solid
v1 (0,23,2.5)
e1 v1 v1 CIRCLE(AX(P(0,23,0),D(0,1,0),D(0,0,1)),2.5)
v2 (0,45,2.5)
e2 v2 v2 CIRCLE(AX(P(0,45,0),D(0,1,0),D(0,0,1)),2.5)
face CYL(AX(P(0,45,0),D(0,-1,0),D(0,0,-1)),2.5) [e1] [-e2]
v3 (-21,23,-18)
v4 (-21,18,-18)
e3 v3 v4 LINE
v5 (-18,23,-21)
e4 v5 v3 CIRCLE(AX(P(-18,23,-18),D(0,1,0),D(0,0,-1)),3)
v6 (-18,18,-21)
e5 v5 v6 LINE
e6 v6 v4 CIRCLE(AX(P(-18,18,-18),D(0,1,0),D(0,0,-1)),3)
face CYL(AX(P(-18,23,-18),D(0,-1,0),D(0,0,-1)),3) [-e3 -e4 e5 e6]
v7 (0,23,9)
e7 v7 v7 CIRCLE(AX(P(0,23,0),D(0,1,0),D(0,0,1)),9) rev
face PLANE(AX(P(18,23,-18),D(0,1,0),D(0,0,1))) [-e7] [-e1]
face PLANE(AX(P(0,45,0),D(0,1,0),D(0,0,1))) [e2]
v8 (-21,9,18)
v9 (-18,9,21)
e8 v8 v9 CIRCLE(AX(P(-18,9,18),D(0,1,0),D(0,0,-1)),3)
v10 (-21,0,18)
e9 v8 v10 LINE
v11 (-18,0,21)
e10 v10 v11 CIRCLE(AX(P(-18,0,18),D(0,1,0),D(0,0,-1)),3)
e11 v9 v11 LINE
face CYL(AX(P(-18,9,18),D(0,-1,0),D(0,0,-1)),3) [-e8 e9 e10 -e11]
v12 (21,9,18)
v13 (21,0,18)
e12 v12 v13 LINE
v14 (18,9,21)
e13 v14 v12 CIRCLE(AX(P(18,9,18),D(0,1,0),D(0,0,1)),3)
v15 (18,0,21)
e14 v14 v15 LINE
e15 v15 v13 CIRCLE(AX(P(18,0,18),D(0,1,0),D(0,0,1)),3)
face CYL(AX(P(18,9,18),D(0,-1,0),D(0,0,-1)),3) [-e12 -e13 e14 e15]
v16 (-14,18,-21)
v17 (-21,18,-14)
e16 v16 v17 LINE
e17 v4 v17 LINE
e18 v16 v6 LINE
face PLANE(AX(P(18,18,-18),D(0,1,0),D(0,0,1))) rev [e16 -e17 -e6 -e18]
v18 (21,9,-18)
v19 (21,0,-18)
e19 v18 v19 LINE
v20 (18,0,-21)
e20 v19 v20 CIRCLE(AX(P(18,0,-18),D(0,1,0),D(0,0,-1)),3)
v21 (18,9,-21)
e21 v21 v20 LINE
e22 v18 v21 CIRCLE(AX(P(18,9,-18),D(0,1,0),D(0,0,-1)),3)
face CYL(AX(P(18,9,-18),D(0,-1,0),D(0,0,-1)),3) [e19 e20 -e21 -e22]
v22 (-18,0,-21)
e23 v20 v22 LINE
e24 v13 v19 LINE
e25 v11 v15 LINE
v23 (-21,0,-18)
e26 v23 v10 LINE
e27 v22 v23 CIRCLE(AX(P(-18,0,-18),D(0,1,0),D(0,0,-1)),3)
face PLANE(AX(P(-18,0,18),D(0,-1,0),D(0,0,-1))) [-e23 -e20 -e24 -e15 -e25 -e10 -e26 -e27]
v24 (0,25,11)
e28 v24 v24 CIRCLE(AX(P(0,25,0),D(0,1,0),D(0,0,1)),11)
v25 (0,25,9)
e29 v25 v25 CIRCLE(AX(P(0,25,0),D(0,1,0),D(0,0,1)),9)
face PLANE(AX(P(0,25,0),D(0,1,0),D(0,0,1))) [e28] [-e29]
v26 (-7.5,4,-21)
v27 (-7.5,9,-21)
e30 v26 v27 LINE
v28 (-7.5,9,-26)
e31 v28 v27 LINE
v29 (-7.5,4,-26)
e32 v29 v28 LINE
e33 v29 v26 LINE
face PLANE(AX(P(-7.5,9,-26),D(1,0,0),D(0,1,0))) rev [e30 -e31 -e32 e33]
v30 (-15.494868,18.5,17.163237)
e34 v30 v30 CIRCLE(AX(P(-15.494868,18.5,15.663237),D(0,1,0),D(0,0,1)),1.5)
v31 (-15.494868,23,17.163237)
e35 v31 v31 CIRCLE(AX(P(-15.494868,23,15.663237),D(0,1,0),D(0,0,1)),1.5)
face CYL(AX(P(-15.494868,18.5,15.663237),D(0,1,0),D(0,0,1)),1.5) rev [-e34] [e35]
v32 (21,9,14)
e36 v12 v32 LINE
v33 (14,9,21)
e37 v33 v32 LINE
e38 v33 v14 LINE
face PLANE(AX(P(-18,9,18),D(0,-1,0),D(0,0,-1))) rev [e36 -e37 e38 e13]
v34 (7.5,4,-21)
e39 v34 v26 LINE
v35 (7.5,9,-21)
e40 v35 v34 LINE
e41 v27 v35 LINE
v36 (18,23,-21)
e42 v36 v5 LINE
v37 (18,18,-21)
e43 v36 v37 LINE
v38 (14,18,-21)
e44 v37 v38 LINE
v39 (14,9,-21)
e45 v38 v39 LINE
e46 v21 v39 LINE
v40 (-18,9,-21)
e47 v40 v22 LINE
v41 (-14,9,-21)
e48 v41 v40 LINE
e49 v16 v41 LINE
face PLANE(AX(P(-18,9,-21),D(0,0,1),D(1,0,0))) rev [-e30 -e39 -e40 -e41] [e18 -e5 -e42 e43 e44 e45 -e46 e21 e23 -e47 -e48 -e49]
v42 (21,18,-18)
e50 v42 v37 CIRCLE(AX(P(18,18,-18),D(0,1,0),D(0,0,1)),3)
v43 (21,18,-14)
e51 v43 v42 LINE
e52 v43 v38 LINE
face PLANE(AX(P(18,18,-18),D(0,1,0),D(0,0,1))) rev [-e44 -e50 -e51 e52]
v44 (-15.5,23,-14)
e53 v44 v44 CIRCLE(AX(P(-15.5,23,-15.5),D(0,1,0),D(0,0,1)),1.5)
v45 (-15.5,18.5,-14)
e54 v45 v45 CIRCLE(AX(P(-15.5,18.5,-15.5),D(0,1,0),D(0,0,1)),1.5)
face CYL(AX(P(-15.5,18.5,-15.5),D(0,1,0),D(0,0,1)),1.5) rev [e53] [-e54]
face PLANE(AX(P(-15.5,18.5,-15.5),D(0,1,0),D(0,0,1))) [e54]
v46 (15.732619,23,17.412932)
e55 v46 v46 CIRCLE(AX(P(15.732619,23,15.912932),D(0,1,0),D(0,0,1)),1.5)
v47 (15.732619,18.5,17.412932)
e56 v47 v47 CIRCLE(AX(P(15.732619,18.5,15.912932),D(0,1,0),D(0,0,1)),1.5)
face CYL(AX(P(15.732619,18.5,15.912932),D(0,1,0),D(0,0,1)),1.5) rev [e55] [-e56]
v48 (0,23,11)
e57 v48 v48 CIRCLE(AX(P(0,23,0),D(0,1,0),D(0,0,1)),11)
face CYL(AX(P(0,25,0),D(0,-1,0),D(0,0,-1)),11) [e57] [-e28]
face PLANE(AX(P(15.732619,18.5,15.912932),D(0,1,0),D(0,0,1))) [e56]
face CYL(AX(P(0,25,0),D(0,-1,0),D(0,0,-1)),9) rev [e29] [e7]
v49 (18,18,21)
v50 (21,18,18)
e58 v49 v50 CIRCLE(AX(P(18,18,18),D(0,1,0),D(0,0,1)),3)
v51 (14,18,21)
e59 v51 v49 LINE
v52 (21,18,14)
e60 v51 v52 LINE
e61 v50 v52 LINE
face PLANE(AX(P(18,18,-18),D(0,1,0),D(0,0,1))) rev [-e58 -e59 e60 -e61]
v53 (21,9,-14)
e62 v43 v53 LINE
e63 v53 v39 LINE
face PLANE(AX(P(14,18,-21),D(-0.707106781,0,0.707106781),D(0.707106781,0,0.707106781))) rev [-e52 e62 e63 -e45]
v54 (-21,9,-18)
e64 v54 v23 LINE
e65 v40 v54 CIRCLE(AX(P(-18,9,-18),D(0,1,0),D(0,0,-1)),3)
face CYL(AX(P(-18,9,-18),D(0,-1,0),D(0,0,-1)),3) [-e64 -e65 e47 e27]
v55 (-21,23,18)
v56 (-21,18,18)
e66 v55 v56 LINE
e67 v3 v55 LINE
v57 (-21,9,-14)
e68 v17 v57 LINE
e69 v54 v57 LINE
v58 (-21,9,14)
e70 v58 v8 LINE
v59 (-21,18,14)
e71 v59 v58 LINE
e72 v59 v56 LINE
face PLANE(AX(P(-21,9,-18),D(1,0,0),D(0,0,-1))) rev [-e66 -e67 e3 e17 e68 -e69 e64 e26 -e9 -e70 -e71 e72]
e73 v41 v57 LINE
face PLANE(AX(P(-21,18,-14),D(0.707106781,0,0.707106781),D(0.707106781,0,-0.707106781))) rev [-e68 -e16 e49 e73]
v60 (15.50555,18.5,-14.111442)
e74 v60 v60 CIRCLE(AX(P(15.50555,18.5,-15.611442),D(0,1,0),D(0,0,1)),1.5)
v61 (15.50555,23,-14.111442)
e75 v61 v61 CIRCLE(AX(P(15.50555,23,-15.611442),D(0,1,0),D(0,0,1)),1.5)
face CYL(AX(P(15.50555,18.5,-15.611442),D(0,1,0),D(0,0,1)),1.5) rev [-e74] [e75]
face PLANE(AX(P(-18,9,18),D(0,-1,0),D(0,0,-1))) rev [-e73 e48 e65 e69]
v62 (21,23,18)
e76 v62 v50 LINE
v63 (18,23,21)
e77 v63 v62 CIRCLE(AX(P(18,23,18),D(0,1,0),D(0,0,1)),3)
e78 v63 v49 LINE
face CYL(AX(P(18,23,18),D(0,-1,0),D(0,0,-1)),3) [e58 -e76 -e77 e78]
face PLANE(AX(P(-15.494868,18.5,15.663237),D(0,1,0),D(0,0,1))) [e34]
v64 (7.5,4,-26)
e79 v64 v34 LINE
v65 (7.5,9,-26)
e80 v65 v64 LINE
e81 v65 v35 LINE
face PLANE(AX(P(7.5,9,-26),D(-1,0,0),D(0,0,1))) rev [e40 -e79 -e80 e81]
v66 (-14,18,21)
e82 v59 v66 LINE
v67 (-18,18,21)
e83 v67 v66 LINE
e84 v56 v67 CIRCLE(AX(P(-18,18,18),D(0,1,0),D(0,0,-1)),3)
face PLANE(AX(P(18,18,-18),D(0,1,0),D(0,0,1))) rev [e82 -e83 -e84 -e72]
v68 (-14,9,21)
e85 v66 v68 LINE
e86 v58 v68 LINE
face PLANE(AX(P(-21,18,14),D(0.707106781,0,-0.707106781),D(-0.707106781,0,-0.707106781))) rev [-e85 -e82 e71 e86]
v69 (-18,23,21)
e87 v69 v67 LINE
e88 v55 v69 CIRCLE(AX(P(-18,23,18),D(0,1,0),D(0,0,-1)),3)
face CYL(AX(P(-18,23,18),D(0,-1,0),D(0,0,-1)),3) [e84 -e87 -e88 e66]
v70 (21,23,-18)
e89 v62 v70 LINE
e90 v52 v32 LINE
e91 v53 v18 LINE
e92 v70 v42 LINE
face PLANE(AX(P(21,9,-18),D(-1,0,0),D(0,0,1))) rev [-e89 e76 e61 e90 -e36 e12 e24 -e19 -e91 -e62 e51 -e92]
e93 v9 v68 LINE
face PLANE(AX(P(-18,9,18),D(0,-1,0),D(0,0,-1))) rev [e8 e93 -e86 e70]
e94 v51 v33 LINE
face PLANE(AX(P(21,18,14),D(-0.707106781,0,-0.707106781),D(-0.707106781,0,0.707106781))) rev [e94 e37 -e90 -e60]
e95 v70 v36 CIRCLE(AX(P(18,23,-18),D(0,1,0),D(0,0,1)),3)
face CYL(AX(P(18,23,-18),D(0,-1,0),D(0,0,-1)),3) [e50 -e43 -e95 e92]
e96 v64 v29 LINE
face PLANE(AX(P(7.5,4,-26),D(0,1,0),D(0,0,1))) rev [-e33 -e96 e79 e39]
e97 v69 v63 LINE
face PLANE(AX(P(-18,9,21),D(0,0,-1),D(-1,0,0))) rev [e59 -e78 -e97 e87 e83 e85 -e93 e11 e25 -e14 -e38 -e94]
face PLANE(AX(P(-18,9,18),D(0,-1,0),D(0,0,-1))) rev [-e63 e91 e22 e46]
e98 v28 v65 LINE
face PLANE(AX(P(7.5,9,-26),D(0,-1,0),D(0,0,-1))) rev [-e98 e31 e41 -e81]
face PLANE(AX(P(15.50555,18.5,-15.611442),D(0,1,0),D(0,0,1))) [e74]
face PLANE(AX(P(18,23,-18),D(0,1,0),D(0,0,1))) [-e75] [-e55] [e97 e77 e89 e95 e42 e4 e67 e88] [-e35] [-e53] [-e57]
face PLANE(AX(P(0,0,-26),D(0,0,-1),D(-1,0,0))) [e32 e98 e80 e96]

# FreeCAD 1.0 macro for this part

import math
import FreeCAD as App
import Part
import Sketcher

V = App.Vector

doc = App.newDocument("Part")
body = doc.addObject("PartDesign::Body", "Body")

# Sketch on XZ plane
sketch1 = body.newObject("Sketcher::SketchObject", "Sketch")
sketch1.AttachmentSupport = (doc.getObject("XZ_Plane"), [""])
sketch1.MapMode = "FlatFace"
sketch1.addGeometry([
    Part.LineSegment(V(18, -21, 0), V(-18, -21, 0)),  # 0
    Part.ArcOfCircle(Part.Circle(V(-18, -18, 0), V(0, 0, 1), 3), math.radians(180), math.radians(270)),  # 1
    Part.LineSegment(V(-21, -18, 0), V(-21, 18, 0)),  # 2
    Part.ArcOfCircle(Part.Circle(V(-18, 18, 0), V(0, 0, 1), 3), math.radians(90), math.radians(180)),  # 3
    Part.LineSegment(V(-18, 21, 0), V(18, 21, 0)),  # 4
    Part.ArcOfCircle(Part.Circle(V(18, 18, 0), V(0, 0, 1), 3), math.radians(0), math.radians(90)),  # 5
    Part.LineSegment(V(21, 18, 0), V(21, -18, 0)),  # 6
    Part.ArcOfCircle(Part.Circle(V(18, -18, 0), V(0, 0, 1), 3), math.radians(-90), math.radians(0)),  # 7
], False)
sketch1.addConstraint([
    Sketcher.Constraint("Tangent", 0, 2, 1, 2),
    Sketcher.Constraint("Tangent", 1, 1, 2, 1),
    Sketcher.Constraint("Tangent", 2, 2, 3, 2),
    Sketcher.Constraint("Tangent", 3, 1, 4, 1),
    Sketcher.Constraint("Tangent", 4, 2, 5, 2),
    Sketcher.Constraint("Tangent", 5, 1, 6, 1),
    Sketcher.Constraint("Tangent", 6, 2, 7, 2),
    Sketcher.Constraint("Tangent", 7, 1, 0, 1),
    Sketcher.Constraint("Horizontal", 0),
    Sketcher.Constraint("Vertical", 2),
    Sketcher.Constraint("Horizontal", 4),
    Sketcher.Constraint("Vertical", 6),
    Sketcher.Constraint("Equal", 1, 3),
    Sketcher.Constraint("Equal", 3, 5),
    Sketcher.Constraint("Equal", 5, 7),
    Sketcher.Constraint("Symmetric", 1, 3, 5, 3, -1, 1),
    Sketcher.Constraint("Equal", 4, 2),
    Sketcher.Constraint("Radius", 1, 3.0),
    Sketcher.Constraint("DistanceX", 0, 2, 0, 1, 36.0),
])
pad1 = body.newObject("PartDesign::Pad", "Pad")
pad1.Profile = sketch1
pad1.Length = 9
pad1.Reversed = True

# Sketch on XZ plane
sketch2 = body.newObject("Sketcher::SketchObject", "Sketch001")
sketch2.AttachmentSupport = (doc.getObject("XZ_Plane"), [""])
sketch2.MapMode = "FlatFace"
sketch2.AttachmentOffset = App.Placement(V(0, 0, -9), App.Rotation())
sketch2.addGeometry([
    Part.LineSegment(V(-14, -21, 0), V(-21, -14, 0)),  # 0
    Part.LineSegment(V(-21, -14, 0), V(-21, 14, 0)),  # 1
    Part.LineSegment(V(-21, 14, 0), V(-14, 21, 0)),  # 2
    Part.LineSegment(V(-14, 21, 0), V(14, 21, 0)),  # 3
    Part.LineSegment(V(14, 21, 0), V(21, 14, 0)),  # 4
    Part.LineSegment(V(21, 14, 0), V(21, -14, 0)),  # 5
    Part.LineSegment(V(21, -14, 0), V(14, -21, 0)),  # 6
    Part.LineSegment(V(14, -21, 0), V(-14, -21, 0)),  # 7
], False)
sketch2.addConstraint([
    Sketcher.Constraint("Coincident", 0, 2, 1, 1),
    Sketcher.Constraint("Coincident", 1, 2, 2, 1),
    Sketcher.Constraint("Coincident", 2, 2, 3, 1),
    Sketcher.Constraint("Coincident", 3, 2, 4, 1),
    Sketcher.Constraint("Coincident", 4, 2, 5, 1),
    Sketcher.Constraint("Coincident", 5, 2, 6, 1),
    Sketcher.Constraint("Coincident", 6, 2, 7, 1),
    Sketcher.Constraint("Coincident", 7, 2, 0, 1),
    Sketcher.Constraint("Vertical", 1),
    Sketcher.Constraint("Horizontal", 3),
    Sketcher.Constraint("Vertical", 5),
    Sketcher.Constraint("Horizontal", 7),
    Sketcher.Constraint("Symmetric", 0, 2, 4, 2, -1, 1),
    Sketcher.Constraint("Symmetric", 2, 2, 6, 2, -1, 1),
    Sketcher.Constraint("Perpendicular", 0, 2),
    Sketcher.Constraint("Perpendicular", 2, 4),
    Sketcher.Constraint("Perpendicular", 4, 6),
    Sketcher.Constraint("Horizontal", 1, 2, 4, 2),
    Sketcher.Constraint("Vertical", 3, 2, 6, 2),
    Sketcher.Constraint("Equal", 7, 1),
    Sketcher.Constraint("DistanceX", 3, 1, 3, 2, 28.0),
    Sketcher.Constraint("DistanceX", 0, 2, -1, 1, 21.0),
])
pad2 = body.newObject("PartDesign::Pad", "Pad001")
pad2.Profile = sketch2
pad2.Length = 9
pad2.Reversed = True

# Sketch on XZ plane
sketch3 = body.newObject("Sketcher::SketchObject", "Sketch002")
sketch3.AttachmentSupport = (doc.getObject("XZ_Plane"), [""])
sketch3.MapMode = "FlatFace"
sketch3.AttachmentOffset = App.Placement(V(0, 0, -18), App.Rotation())
sketch3.addGeometry([
    Part.LineSegment(V(18, -21, 0), V(-18, -21, 0)),  # 0
    Part.ArcOfCircle(Part.Circle(V(-18, -18, 0), V(0, 0, 1), 3), math.radians(180), math.radians(270)),  # 1
    Part.LineSegment(V(-21, -18, 0), V(-21, 18, 0)),  # 2
    Part.ArcOfCircle(Part.Circle(V(-18, 18, 0), V(0, 0, 1), 3), math.radians(90), math.radians(180)),  # 3
    Part.LineSegment(V(-18, 21, 0), V(18, 21, 0)),  # 4
    Part.ArcOfCircle(Part.Circle(V(18, 18, 0), V(0, 0, 1), 3), math.radians(0), math.radians(90)),  # 5
    Part.LineSegment(V(21, 18, 0), V(21, -18, 0)),  # 6
    Part.ArcOfCircle(Part.Circle(V(18, -18, 0), V(0, 0, 1), 3), math.radians(-90), math.radians(0)),  # 7
], False)
sketch3.addConstraint([
    Sketcher.Constraint("Tangent", 0, 2, 1, 2),
    Sketcher.Constraint("Tangent", 1, 1, 2, 1),
    Sketcher.Constraint("Tangent", 2, 2, 3, 2),
    Sketcher.Constraint("Tangent", 3, 1, 4, 1),
    Sketcher.Constraint("Tangent", 4, 2, 5, 2),
    Sketcher.Constraint("Tangent", 5, 1, 6, 1),
    Sketcher.Constraint("Tangent", 6, 2, 7, 2),
    Sketcher.Constraint("Tangent", 7, 1, 0, 1),
    Sketcher.Constraint("Horizontal", 0),
    Sketcher.Constraint("Vertical", 2),
    Sketcher.Constraint("Horizontal", 4),
    Sketcher.Constraint("Vertical", 6),
    Sketcher.Constraint("Equal", 1, 3),
    Sketcher.Constraint("Equal", 3, 5),
    Sketcher.Constraint("Equal", 5, 7),
    Sketcher.Constraint("Symmetric", 1, 3, 5, 3, -1, 1),
    Sketcher.Constraint("Equal", 4, 2),
    Sketcher.Constraint("Radius", 1, 3.0),
    Sketcher.Constraint("DistanceX", 0, 2, 0, 1, 36.0),
])
pad3 = body.newObject("PartDesign::Pad", "Pad002")
pad3.Profile = sketch3
pad3.Length = 5
pad3.Reversed = True

# Sketch on XZ plane
sketch4 = body.newObject("Sketcher::SketchObject", "Sketch003")
sketch4.AttachmentSupport = (doc.getObject("XZ_Plane"), [""])
sketch4.MapMode = "FlatFace"
sketch4.AttachmentOffset = App.Placement(V(0, 0, -23), App.Rotation())
sketch4.addGeometry([
    Part.Circle(V(0, 0, 0), V(0, 0, 1), 11),
    Part.Circle(V(0, 0, 0), V(0, 0, 1), 9),
], False)
sketch4.addConstraint([
    Sketcher.Constraint("Coincident", 0, 3, -1, 1),
    Sketcher.Constraint("Coincident", 1, 3, -1, 1),
    Sketcher.Constraint("Diameter", 0, 22.0),
    Sketcher.Constraint("Diameter", 1, 18.0),
])
pad4 = body.newObject("PartDesign::Pad", "Pad003")
pad4.Profile = sketch4
pad4.Length = 2
pad4.Reversed = True

# Sketch on XZ plane
sketch5 = body.newObject("Sketcher::SketchObject", "Sketch004")
sketch5.AttachmentSupport = (doc.getObject("XZ_Plane"), [""])
sketch5.MapMode = "FlatFace"
sketch5.AttachmentOffset = App.Placement(V(0, 0, -23), App.Rotation())
sketch5.addGeometry(Part.Circle(V(0, 0, 0), V(0, 0, 1), 2.5), False)
sketch5.addConstraint([
    Sketcher.Constraint("Coincident", 0, 3, -1, 1),
    Sketcher.Constraint("Diameter", 0, 5.0),
])
pad5 = body.newObject("PartDesign::Pad", "Pad004")
pad5.Profile = sketch5
pad5.Length = 22
pad5.Reversed = True

# Sketch on XZ plane
sketch6 = body.newObject("Sketcher::SketchObject", "Sketch005")
sketch6.AttachmentSupport = (doc.getObject("XZ_Plane"), [""])
sketch6.MapMode = "FlatFace"
sketch6.AttachmentOffset = App.Placement(V(0, 0, -23), App.Rotation())
sketch6.addGeometry([
    Part.Circle(V(-15.5, -15.5, 0), V(0, 0, 1), 1.5),
    Part.Circle(V(15.5, -15.6, 0), V(0, 0, 1), 1.5),
    Part.Circle(V(15.7, 15.9, 0), V(0, 0, 1), 1.5),
    Part.Circle(V(-15.5, 15.7, 0), V(0, 0, 1), 1.5),
], False)
sketch6.addConstraint([
    Sketcher.Constraint("Equal", 0, 1),
    Sketcher.Constraint("Equal", 1, 2),
    Sketcher.Constraint("Equal", 2, 3),
    Sketcher.Constraint("Diameter", 0, 3.0),
    Sketcher.Constraint("DistanceX", 0, 3, -1, 1, 15.5),
    Sketcher.Constraint("DistanceY", 0, 3, -1, 1, 15.5),
    Sketcher.Constraint("DistanceX", -1, 1, 1, 3, 15.50555),
    Sketcher.Constraint("DistanceY", 1, 3, -1, 1, 15.611442),
    Sketcher.Constraint("DistanceX", -1, 1, 2, 3, 15.732619),
    Sketcher.Constraint("DistanceY", -1, 1, 2, 3, 15.912932),
    Sketcher.Constraint("DistanceX", 3, 3, 1, 3, 31.000418),
    Sketcher.Constraint("DistanceY", 1, 3, 3, 3, 31.274678),
])
pocket1 = body.newObject("PartDesign::Pocket", "Pocket")
pocket1.Profile = sketch6
pocket1.Length = 4.5
pocket1.Reversed = True

# Sketch on XY plane
sketch7 = body.newObject("Sketcher::SketchObject", "Sketch006")
sketch7.AttachmentSupport = (doc.getObject("XY_Plane"), [""])
sketch7.MapMode = "FlatFace"
sketch7.AttachmentOffset = App.Placement(V(0, 0, -21), App.Rotation())
sketch7.addGeometry([
    Part.LineSegment(V(8, 9, 0), V(8, 4, 0)),
    Part.LineSegment(V(8, 4, 0), V(-8, 4, 0)),
    Part.LineSegment(V(-8, 4, 0), V(-8, 9, 0)),
    Part.LineSegment(V(-8, 9, 0), V(8, 9, 0)),
], False)
sketch7.addConstraint([
    Sketcher.Constraint("Coincident", 0, 2, 1, 1),
    Sketcher.Constraint("Coincident", 1, 2, 2, 1),
    Sketcher.Constraint("Coincident", 2, 2, 3, 1),
    Sketcher.Constraint("Coincident", 3, 2, 0, 1),
    Sketcher.Constraint("Vertical", 0),
    Sketcher.Constraint("Horizontal", 1),
    Sketcher.Constraint("Vertical", 2),
    Sketcher.Constraint("Horizontal", 3),
    Sketcher.Constraint("DistanceX", 1, 2, 1, 1, 15.0),
    Sketcher.Constraint("DistanceY", 0, 2, 0, 1, 5.0),
    Sketcher.Constraint("DistanceY", -1, 1, 0, 2, 4.0),
    Sketcher.Constraint("DistanceX", -1, 1, 0, 2, 7.5),
])
pad6 = body.newObject("PartDesign::Pad", "Pad005")
pad6.Profile = sketch7
pad6.Length = 5
pad6.Reversed = True

doc.recompute()
